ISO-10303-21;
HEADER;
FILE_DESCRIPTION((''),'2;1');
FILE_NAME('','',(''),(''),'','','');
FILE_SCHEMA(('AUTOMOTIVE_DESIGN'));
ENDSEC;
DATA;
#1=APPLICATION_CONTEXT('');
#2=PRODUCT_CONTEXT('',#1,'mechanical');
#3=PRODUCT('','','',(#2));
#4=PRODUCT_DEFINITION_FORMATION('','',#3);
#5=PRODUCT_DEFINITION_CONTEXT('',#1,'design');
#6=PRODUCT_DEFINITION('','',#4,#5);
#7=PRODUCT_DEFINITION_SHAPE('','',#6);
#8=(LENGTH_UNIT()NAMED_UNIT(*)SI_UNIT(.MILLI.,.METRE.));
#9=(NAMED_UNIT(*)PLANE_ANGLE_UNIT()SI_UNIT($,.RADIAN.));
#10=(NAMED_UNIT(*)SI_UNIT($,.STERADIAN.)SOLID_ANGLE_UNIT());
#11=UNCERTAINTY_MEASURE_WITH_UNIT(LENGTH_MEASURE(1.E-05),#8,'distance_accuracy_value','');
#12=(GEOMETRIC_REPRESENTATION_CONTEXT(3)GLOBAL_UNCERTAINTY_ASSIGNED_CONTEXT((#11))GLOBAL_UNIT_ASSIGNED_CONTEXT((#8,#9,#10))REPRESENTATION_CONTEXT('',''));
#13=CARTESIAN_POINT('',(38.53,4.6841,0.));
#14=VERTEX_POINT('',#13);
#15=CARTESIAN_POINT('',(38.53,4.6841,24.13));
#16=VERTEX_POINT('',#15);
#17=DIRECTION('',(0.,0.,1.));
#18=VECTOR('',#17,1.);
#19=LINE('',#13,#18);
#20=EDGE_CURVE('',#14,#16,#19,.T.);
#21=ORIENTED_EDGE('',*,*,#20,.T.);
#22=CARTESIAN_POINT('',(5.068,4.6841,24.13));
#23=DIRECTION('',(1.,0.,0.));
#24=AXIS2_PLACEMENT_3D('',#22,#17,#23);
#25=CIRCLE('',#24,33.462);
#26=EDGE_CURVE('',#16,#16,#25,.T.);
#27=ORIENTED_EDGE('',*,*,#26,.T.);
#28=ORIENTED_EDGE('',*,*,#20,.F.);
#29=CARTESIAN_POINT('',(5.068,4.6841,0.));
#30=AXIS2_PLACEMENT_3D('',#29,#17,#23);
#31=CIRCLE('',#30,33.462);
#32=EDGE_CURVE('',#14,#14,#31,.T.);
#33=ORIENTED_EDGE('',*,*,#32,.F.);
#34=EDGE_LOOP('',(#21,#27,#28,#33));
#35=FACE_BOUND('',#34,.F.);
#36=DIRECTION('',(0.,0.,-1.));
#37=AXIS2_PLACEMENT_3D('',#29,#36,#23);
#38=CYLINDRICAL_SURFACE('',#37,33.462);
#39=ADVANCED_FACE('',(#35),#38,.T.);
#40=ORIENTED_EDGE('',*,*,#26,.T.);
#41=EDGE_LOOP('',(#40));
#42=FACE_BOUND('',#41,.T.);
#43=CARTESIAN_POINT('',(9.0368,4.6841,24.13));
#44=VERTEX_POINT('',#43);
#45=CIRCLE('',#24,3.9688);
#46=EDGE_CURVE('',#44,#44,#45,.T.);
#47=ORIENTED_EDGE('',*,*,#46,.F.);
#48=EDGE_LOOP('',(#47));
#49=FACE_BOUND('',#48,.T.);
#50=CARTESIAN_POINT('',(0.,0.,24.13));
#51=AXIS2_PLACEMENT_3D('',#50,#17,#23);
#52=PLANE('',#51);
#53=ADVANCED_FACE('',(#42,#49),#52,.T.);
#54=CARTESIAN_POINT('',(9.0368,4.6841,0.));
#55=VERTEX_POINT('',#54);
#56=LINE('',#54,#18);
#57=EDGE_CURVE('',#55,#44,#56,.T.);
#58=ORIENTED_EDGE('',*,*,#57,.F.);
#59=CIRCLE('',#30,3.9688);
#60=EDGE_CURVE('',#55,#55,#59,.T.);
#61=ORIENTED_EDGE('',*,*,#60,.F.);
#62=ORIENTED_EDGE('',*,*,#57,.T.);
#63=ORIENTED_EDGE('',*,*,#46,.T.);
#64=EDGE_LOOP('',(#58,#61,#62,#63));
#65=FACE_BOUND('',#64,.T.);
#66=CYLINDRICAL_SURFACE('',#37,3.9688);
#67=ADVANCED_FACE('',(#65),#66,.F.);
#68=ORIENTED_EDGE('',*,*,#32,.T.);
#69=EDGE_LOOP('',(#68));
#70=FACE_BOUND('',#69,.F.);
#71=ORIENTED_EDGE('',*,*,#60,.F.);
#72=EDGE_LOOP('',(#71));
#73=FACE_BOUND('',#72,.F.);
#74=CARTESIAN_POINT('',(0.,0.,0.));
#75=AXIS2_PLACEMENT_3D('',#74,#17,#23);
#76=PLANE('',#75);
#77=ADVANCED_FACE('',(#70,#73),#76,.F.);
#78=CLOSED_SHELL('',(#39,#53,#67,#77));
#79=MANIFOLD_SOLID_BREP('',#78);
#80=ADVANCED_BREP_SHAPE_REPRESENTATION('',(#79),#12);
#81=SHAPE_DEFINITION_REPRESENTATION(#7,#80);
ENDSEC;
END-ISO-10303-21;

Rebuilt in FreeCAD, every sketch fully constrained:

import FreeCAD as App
import Part
import Sketcher
Q = App.Units.Quantity

doc = App.newDocument("Part")
params = doc.addObject("Spreadsheet::Sheet", "Params")
for row, (alias, value) in enumerate([
    ("sketch1_diameter", "0.3125 in"),
    ("pad1_length", "0.95 in"),
], start=1):
    params.set(f"A{row}", alias)
    params.set(f"B{row}", "=" + value)
    params.setAlias(f"B{row}", alias)

body = doc.addObject("PartDesign::Body", "Body")

# Sketch on XY plane
sketch1 = doc.addObject("Sketcher::SketchObject", "Sketch")
body.addObject(sketch1)
sketch1.AttachmentSupport = (doc.XY_Plane, [""])
sketch1.MapMode = "FlatFace"
sketch1.addGeometry([
    Part.Circle(App.Vector(5.1, 4.7, 0), App.Vector(0, 0, 1), 33.5),
    Part.Circle(App.Vector(5.1, 4.7, 0), App.Vector(0, 0, 1), 4),
], False)
sketch1.addConstraint([
    Sketcher.Constraint("Coincident", 1, 3, 0, 3),
    Sketcher.Constraint("Diameter", 1, Q("0.3125 in")),
    Sketcher.Constraint("Diameter", 0, Q("2.6348 in")),
    Sketcher.Constraint("DistanceX", -1, 1, 0, 3, 5.068),
    Sketcher.Constraint("DistanceY", -1, 1, 0, 3, Q("0.1844094 in")),
])
sketch1.setExpression("Constraints[1]", "Params.sketch1_diameter")
pad1 = doc.addObject("PartDesign::Pad", "Pad")
body.addObject(pad1)
pad1.Profile = sketch1
pad1.setExpression("Length", "Params.pad1_length")

doc.recompute()
